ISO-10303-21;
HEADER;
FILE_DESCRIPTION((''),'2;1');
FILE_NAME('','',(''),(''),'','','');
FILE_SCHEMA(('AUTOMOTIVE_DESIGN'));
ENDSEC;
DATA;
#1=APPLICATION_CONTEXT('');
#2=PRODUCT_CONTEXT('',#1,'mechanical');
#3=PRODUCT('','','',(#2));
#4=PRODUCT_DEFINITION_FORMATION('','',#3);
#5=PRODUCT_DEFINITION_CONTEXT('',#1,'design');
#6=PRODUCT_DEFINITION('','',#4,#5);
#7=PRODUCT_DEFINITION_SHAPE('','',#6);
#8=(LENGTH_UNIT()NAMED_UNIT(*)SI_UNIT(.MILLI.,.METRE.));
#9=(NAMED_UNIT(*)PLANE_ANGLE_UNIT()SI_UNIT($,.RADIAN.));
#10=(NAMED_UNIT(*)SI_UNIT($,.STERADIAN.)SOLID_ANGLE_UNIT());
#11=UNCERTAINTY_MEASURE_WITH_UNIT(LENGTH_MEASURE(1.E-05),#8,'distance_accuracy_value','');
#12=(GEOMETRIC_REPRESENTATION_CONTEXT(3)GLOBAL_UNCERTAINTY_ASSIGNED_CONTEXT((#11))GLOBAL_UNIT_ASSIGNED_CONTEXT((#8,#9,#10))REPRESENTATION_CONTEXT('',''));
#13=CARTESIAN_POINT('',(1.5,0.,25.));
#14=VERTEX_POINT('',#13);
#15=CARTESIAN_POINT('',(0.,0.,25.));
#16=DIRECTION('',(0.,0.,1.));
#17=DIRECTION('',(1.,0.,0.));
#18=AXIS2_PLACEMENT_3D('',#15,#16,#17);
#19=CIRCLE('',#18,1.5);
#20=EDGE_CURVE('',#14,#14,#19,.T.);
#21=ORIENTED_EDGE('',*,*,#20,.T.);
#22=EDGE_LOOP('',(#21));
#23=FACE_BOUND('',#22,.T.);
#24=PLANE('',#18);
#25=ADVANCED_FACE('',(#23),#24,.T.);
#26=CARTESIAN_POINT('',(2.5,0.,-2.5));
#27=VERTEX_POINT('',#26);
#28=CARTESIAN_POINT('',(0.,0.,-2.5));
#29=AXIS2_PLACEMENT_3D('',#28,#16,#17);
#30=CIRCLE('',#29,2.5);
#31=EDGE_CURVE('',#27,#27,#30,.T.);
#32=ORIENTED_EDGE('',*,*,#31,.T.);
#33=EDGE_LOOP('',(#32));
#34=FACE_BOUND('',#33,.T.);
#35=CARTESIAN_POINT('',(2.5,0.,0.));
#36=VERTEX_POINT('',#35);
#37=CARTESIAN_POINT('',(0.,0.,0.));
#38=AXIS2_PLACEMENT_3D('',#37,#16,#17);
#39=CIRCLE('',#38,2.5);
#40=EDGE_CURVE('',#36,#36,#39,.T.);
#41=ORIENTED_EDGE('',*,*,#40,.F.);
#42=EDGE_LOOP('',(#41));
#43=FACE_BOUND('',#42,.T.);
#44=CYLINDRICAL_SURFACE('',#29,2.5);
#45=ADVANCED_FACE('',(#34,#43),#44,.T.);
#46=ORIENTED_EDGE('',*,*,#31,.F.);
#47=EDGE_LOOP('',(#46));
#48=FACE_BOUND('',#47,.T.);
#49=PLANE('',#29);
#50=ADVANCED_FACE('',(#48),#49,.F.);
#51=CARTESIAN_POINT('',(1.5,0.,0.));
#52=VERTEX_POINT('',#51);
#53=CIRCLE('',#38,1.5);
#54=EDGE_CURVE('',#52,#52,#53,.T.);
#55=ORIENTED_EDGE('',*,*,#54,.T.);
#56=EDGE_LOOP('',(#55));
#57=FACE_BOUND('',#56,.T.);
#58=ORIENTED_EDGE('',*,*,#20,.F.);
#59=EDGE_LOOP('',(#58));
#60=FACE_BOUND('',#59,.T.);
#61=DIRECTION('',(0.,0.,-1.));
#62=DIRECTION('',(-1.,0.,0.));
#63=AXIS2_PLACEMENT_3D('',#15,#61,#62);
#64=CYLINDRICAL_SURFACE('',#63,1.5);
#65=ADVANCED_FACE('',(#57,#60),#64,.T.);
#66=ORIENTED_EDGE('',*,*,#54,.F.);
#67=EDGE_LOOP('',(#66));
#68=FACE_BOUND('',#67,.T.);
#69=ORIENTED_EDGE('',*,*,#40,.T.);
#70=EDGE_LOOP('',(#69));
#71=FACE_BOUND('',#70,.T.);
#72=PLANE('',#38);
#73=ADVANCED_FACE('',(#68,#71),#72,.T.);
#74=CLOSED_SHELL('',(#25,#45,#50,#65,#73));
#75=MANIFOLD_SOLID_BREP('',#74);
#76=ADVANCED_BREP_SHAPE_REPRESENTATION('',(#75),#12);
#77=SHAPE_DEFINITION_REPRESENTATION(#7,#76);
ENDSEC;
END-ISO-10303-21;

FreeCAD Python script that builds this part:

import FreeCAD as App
import Part
import Sketcher
from FreeCAD import Vector

doc = App.newDocument("Part")
body = doc.addObject("PartDesign::Body", "Body")

# Sketch on XY plane
sketch1 = body.newObject("Sketcher::SketchObject", "Sketch")
sketch1.AttachmentSupport = (doc.getObject("XY_Plane"), [""])
sketch1.MapMode = "FlatFace"
sketch1.addGeometry(Part.Circle(Vector(0, 0, 0), Vector(0, 0, 1), 2.5), False)
sketch1.addConstraint([
    Sketcher.Constraint("Coincident", 0, 3, -1, 1),
    Sketcher.Constraint("Diameter", 0, 5.0),
])
pad1 = body.newObject("PartDesign::Pad", "Pad")
pad1.Profile = sketch1
pad1.Length = 2.5
pad1.Reversed = True

# Sketch on XY plane
sketch2 = body.newObject("Sketcher::SketchObject", "Sketch001")
sketch2.AttachmentSupport = (doc.getObject("XY_Plane"), [""])
sketch2.MapMode = "FlatFace"
sketch2.addGeometry(Part.Circle(Vector(0, 0, 0), Vector(0, 0, 1), 1.5), False)
sketch2.addConstraint([
    Sketcher.Constraint("Coincident", 0, 3, -1, 1),
    Sketcher.Constraint("Diameter", 0, 3.0),
])
pad2 = body.newObject("PartDesign::Pad", "Pad001")
pad2.Profile = sketch2
pad2.Length = 25

doc.recompute()
